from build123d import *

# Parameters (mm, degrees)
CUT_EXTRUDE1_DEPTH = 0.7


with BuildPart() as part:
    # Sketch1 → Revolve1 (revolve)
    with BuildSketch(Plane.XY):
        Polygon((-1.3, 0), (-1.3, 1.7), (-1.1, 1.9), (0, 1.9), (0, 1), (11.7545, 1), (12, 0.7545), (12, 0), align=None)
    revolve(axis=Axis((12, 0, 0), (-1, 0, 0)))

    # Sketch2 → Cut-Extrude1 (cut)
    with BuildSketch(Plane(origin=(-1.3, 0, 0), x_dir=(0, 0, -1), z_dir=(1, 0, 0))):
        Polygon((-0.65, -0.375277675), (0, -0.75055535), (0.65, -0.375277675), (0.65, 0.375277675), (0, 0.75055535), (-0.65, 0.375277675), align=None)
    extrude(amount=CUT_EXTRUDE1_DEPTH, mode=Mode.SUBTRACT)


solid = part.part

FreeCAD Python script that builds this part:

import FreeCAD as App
import Part
import Sketcher
from FreeCAD import Vector
Q = App.Units.Quantity

doc = App.newDocument("Part")
body = doc.addObject("PartDesign::Body", "Body")

# Sketch on XY plane
sketch1 = doc.addObject("Sketcher::SketchObject", "Sketch")
body.addObject(sketch1)
sketch1.AttachmentSupport = (doc.XY_Plane, [""])
sketch1.MapMode = "FlatFace"
sketch1.addGeometry([
    Part.LineSegment(Vector(-1.3, 1.7, 0), Vector(-1.3, 0, 0)),  # 0
    Part.LineSegment(Vector(-1.3, 0, 0), Vector(12, 0, 0)),  # 1
    Part.LineSegment(Vector(12, 0, 0), Vector(12, 0.75, 0)),  # 2
    Part.LineSegment(Vector(12, 0.75, 0), Vector(11.75, 1, 0)),  # 3
    Part.LineSegment(Vector(11.75, 1, 0), Vector(0, 1, 0)),  # 4
    Part.LineSegment(Vector(0, 1, 0), Vector(0, 1.9, 0)),  # 5
    Part.LineSegment(Vector(0, 1.9, 0), Vector(-1.1, 1.9, 0)),  # 6
    Part.LineSegment(Vector(-1.1, 1.9, 0), Vector(-1.3, 1.7, 0)),  # 7
], False)
sketch1.addConstraint([
    Sketcher.Constraint("Coincident", 0, 2, 1, 1),
    Sketcher.Constraint("Coincident", 1, 2, 2, 1),
    Sketcher.Constraint("Coincident", 2, 2, 3, 1),
    Sketcher.Constraint("Coincident", 3, 2, 4, 1),
    Sketcher.Constraint("Coincident", 4, 2, 5, 1),
    Sketcher.Constraint("Coincident", 5, 2, 6, 1),
    Sketcher.Constraint("Coincident", 6, 2, 7, 1),
    Sketcher.Constraint("Coincident", 7, 2, 0, 1),
    Sketcher.Constraint("Vertical", 0),
    Sketcher.Constraint("Horizontal", 1),
    Sketcher.Constraint("Vertical", 2),
    Sketcher.Constraint("Horizontal", 4),
    Sketcher.Constraint("Vertical", 5),
    Sketcher.Constraint("Horizontal", 6),
    Sketcher.Constraint("PointOnObject", 0, 2, -1),
    Sketcher.Constraint("PointOnObject", 4, 2, -2),
    Sketcher.Constraint("Perpendicular", 3, 7),
    Sketcher.Constraint("Angle", 3, Q("135 deg")),
    Sketcher.Constraint("DistanceX", 1, 1, 1, 2, Q("13.3 mm")),
    Sketcher.Constraint("DistanceX", 6, 2, 6, 1, Q("1.1 mm")),
    Sketcher.Constraint("DistanceY", 0, 2, 0, 1, Q("1.7 mm")),
    Sketcher.Constraint("DistanceY", 5, 1, 5, 2, Q("0.9 mm")),
    Sketcher.Constraint("DistanceX", -1, 1, 1, 2, Q("12 mm")),
    Sketcher.Constraint("DistanceX", 4, 2, 4, 1, Q("11.7545 mm")),
])
revolution = doc.addObject("PartDesign::Revolution", "Revolution")
body.addObject(revolution)
revolution.Profile = sketch1
revolution.ReferenceAxis = (sketch1, ["H_Axis"])
revolution.Angle = 360

# Sketch on YZ plane
sketch2 = doc.addObject("Sketcher::SketchObject", "Sketch001")
body.addObject(sketch2)
sketch2.AttachmentSupport = (doc.YZ_Plane, [""])
sketch2.MapMode = "FlatFace"
sketch2.AttachmentOffset = App.Placement(Vector(0, 0, -1.3), App.Rotation())
sketch2.addGeometry([
    Part.LineSegment(Vector(-0.4, 0.7, 0), Vector(-0.8, 0, 0)),  # 0
    Part.LineSegment(Vector(-0.8, 0, 0), Vector(-0.4, -0.7, 0)),  # 1
    Part.LineSegment(Vector(-0.4, -0.7, 0), Vector(0.4, -0.7, 0)),  # 2
    Part.LineSegment(Vector(0.4, -0.7, 0), Vector(0.8, 0, 0)),  # 3
    Part.LineSegment(Vector(0.8, 0, 0), Vector(0.4, 0.7, 0)),  # 4
    Part.LineSegment(Vector(0.4, 0.7, 0), Vector(-0.4, 0.7, 0)),  # 5
], False)
sketch2.addConstraint([
    Sketcher.Constraint("Coincident", 0, 2, 1, 1),
    Sketcher.Constraint("Coincident", 1, 2, 2, 1),
    Sketcher.Constraint("Coincident", 2, 2, 3, 1),
    Sketcher.Constraint("Coincident", 3, 2, 4, 1),
    Sketcher.Constraint("Coincident", 4, 2, 5, 1),
    Sketcher.Constraint("Coincident", 5, 2, 0, 1),
    Sketcher.Constraint("Horizontal", 2),
    Sketcher.Constraint("Horizontal", 5),
    Sketcher.Constraint("Symmetric", 0, 2, 3, 2, -1, 1),
    Sketcher.Constraint("Symmetric", 1, 2, 4, 2, -1, 1),
    Sketcher.Constraint("PointOnObject", 0, 2, -1),
    Sketcher.Constraint("Parallel", 0, 3),
    Sketcher.Constraint("Vertical", 2, 2, 4, 2),
    Sketcher.Constraint("Angle", 0, Q("-120 deg")),
    Sketcher.Constraint("DistanceY", 2, 2, 4, 2, Q("1.3 mm")),
    Sketcher.Constraint("DistanceX", 2, 1, 2, 2, Q("0.750555 mm")),
])
pocket1 = doc.addObject("PartDesign::Pocket", "Pocket")
body.addObject(pocket1)
pocket1.Profile = sketch2
pocket1.Length = 0.7
pocket1.Reversed = True

doc.recompute()
